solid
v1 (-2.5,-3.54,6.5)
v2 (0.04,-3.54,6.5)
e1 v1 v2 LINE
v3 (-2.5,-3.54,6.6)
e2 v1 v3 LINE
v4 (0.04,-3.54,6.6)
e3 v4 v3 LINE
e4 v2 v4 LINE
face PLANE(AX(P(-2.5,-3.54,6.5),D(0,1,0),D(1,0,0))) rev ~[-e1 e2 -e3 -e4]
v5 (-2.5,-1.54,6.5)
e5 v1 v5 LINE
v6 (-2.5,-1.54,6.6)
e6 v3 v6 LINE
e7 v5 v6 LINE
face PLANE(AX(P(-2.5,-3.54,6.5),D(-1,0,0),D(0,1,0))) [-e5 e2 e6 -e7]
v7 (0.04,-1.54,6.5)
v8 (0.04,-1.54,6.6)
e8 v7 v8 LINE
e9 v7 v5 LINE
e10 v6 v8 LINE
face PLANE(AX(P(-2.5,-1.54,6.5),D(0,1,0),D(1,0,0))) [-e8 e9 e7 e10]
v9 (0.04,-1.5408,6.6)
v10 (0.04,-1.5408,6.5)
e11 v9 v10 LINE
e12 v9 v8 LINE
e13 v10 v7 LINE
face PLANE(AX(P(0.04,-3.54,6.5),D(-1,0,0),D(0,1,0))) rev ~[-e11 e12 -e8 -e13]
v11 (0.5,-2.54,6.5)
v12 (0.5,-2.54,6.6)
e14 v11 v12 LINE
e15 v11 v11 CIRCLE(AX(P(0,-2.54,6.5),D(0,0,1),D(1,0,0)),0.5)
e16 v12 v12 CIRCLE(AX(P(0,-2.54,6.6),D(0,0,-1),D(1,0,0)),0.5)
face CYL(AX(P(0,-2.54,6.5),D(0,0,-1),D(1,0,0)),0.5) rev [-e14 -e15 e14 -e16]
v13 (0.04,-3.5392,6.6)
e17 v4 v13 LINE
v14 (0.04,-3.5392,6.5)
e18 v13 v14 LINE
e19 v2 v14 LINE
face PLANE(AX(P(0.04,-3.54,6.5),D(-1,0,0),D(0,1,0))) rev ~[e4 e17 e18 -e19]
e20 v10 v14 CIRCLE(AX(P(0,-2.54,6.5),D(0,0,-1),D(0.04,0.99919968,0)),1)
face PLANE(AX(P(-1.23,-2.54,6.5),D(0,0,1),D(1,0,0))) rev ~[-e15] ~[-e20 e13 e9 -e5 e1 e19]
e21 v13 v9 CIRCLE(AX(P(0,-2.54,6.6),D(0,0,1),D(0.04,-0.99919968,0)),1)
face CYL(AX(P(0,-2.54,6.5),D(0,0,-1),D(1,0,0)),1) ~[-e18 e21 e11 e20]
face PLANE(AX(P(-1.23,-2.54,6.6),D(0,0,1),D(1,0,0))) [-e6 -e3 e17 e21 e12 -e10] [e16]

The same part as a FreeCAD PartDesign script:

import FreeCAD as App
import Part
import Sketcher

doc = App.newDocument("Part")
body = doc.addObject("PartDesign::Body", "Body")

sketch1 = body.newObject("Sketcher::SketchObject", "Sketch")
sketch1.AttachmentSupport = (doc.getObject("XY_Plane"), [""])
sketch1.MapMode = "FlatFace"
sketch1.AttachmentOffset = App.Placement(App.Vector(0, 0, 1), App.Rotation())
sketch1.addGeometry(Part.Circle(App.Vector(0, 0, 0), App.Vector(0, 0, 1), 0.5), False)
sketch1.addConstraint(Sketcher.Constraint("Coincident", 0, 3, -1, 1))
sketch1.addConstraint(Sketcher.Constraint("Diameter", 0, 1.0))
pad1 = body.newObject("PartDesign::Pad", "Pad")
pad1.Profile = sketch1
pad1.Length = 0.1
body2 = doc.addObject("PartDesign::Body", "Body001")

sketch2 = body2.newObject("Sketcher::SketchObject", "Sketch001")
sketch2.AttachmentSupport = (doc.getObject("XY_Plane001"), [""])
sketch2.MapMode = "FlatFace"
sketch2.AttachmentOffset = App.Placement(App.Vector(0, 0, 1), App.Rotation())
sketch2.addGeometry(Part.LineSegment(App.Vector(-2.5, 1, 0), App.Vector(-2.5, -1, 0)), False)
sketch2.addGeometry(Part.LineSegment(App.Vector(-2.5, -1, 0), App.Vector(0.04, -1, 0)), False)
sketch2.addGeometry(Part.LineSegment(App.Vector(0.04, -1, 0), App.Vector(0.04, 1, 0)), False)
sketch2.addGeometry(Part.LineSegment(App.Vector(0.04, 1, 0), App.Vector(-2.5, 1, 0)), False)
sketch2.addConstraint(Sketcher.Constraint("Coincident", 0, 2, 1, 1))
sketch2.addConstraint(Sketcher.Constraint("Coincident", 1, 2, 2, 1))
sketch2.addConstraint(Sketcher.Constraint("Coincident", 2, 2, 3, 1))
sketch2.addConstraint(Sketcher.Constraint("Coincident", 3, 2, 0, 1))
sketch2.addConstraint(Sketcher.Constraint("Vertical", 0))
sketch2.addConstraint(Sketcher.Constraint("Horizontal", 1))
sketch2.addConstraint(Sketcher.Constraint("Vertical", 2))
sketch2.addConstraint(Sketcher.Constraint("Horizontal", 3))
sketch2.addConstraint(Sketcher.Constraint("DistanceY", 0, 2, 0, 1, 2.0))
sketch2.addConstraint(Sketcher.Constraint("DistanceY", 0, 2, -1, 1, 1.0))
sketch2.addConstraint(Sketcher.Constraint("DistanceX", 1, 1, 1, 2, 2.54))
sketch2.addConstraint(Sketcher.Constraint("DistanceX", 0, 2, -1, 1, 2.5))
pad2 = body2.newObject("PartDesign::Pad", "Pad001")
pad2.Profile = sketch2
pad2.Length = 0.1
doc.recompute()

boolean = body2.newObject("PartDesign::Boolean", "Boolean")
boolean.Type = "Cut"
boolean.addObjects([body])
body3 = doc.addObject("PartDesign::Body", "Body002")

sketch3 = body3.newObject("Sketcher::SketchObject", "Sketch002")
sketch3.AttachmentSupport = (doc.getObject("XY_Plane002"), [""])
sketch3.MapMode = "FlatFace"
sketch3.AttachmentOffset = App.Placement(App.Vector(0, 0, 1), App.Rotation())
sketch3.addGeometry(Part.Circle(App.Vector(0, 0, 0), App.Vector(0, 0, 1), 0.5), False)
sketch3.addConstraint(Sketcher.Constraint("Coincident", 0, 3, -1, 1))
sketch3.addConstraint(Sketcher.Constraint("Diameter", 0, 1.0))
pad3 = body3.newObject("PartDesign::Pad", "Pad002")
pad3.Profile = sketch3
pad3.Length = 0.1
body4 = doc.addObject("PartDesign::Body", "Body003")

sketch4 = body4.newObject("Sketcher::SketchObject", "Sketch003")
sketch4.AttachmentSupport = (doc.getObject("XY_Plane003"), [""])
sketch4.MapMode = "FlatFace"
sketch4.AttachmentOffset = App.Placement(App.Vector(0, 0, 1), App.Rotation())
sketch4.addGeometry(Part.Circle(App.Vector(0, 0, 0), App.Vector(0, 0, 1), 1), False)
sketch4.addConstraint(Sketcher.Constraint("Coincident", 0, 3, -1, 1))
sketch4.addConstraint(Sketcher.Constraint("Diameter", 0, 2.0))
pad4 = body4.newObject("PartDesign::Pad", "Pad003")
pad4.Profile = sketch4
pad4.Length = 0.1
doc.recompute()

boolean2 = body4.newObject("PartDesign::Boolean", "Boolean001")
boolean2.Type = "Cut"
boolean2.addObjects([body3])
doc.recompute()

boolean3 = body4.newObject("PartDesign::Boolean", "Boolean002")
boolean3.Type = "Fuse"
boolean3.addObjects([body2])
body5 = doc.addObject("PartDesign::Body", "Body004")
doc.recompute()

body4.Placement = App.Placement(App.Vector(0, -2.54, 5.5), App.Rotation(App.Vector(0, 0, 1), 0))
boolean4 = body5.newObject("PartDesign::Boolean", "Boolean003")
boolean4.Type = "Fuse"
boolean4.addObjects([body4])

doc.recompute()
